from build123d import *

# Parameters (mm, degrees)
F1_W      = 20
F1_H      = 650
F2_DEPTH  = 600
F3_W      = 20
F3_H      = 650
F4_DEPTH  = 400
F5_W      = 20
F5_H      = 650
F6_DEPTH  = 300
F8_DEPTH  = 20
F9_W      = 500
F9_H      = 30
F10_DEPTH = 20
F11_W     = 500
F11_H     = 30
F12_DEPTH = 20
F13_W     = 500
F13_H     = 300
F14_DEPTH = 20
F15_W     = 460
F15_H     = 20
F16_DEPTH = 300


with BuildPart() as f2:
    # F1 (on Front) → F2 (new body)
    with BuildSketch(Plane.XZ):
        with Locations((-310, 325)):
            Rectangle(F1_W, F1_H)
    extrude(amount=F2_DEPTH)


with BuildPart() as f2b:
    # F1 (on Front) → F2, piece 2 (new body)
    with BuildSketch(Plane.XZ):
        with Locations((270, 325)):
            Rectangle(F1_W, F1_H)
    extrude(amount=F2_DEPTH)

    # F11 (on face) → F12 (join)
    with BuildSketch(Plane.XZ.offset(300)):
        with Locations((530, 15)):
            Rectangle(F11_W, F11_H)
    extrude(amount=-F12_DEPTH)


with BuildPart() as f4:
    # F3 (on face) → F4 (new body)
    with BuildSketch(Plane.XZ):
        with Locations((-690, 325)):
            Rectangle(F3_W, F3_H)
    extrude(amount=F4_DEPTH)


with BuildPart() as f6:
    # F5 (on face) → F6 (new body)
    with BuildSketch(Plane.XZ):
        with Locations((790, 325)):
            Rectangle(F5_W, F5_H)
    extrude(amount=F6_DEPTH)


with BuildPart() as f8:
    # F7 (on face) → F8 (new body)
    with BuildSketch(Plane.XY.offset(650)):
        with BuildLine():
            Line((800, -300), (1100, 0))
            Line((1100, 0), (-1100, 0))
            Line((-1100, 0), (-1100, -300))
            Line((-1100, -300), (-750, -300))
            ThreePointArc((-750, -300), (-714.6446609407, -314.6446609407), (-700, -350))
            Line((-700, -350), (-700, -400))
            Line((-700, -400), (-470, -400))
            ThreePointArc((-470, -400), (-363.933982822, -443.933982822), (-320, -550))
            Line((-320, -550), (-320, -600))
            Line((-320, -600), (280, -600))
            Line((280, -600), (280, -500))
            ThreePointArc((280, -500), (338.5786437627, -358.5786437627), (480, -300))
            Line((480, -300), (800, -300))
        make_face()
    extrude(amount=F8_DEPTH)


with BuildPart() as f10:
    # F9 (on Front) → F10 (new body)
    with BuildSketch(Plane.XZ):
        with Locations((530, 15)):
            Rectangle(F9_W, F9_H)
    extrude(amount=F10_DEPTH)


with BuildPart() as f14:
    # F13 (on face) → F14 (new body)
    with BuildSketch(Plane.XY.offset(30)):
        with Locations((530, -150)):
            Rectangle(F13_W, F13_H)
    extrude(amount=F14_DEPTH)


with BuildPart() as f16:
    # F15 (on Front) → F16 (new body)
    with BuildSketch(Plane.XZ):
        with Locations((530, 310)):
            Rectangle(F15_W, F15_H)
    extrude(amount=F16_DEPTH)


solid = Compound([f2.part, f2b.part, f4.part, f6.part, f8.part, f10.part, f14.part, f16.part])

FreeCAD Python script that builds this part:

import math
import FreeCAD as App
import Part
import Sketcher
from FreeCAD import Vector
Q = App.Units.Quantity

doc = App.newDocument("Part")
body = doc.addObject("PartDesign::Body", "Body")

# Sketch on XZ plane
sketch1 = body.newObject("Sketcher::SketchObject", "Sketch")
sketch1.AttachmentSupport = (doc.getObject("XZ_Plane"), [""])
sketch1.MapMode = "FlatFace"
sketch1.addGeometry([
    Part.LineSegment(Vector(-320, 650, 0), Vector(-320, 0, 0)),
    Part.LineSegment(Vector(-320, 0, 0), Vector(-300, 0, 0)),
    Part.LineSegment(Vector(-300, 0, 0), Vector(-300, 650, 0)),
    Part.LineSegment(Vector(-300, 650, 0), Vector(-320, 650, 0)),
], False)
sketch1.addConstraint([
    Sketcher.Constraint("Coincident", 0, 2, 1, 1),
    Sketcher.Constraint("Coincident", 1, 2, 2, 1),
    Sketcher.Constraint("Coincident", 2, 2, 3, 1),
    Sketcher.Constraint("Coincident", 3, 2, 0, 1),
    Sketcher.Constraint("Vertical", 0),
    Sketcher.Constraint("Horizontal", 1),
    Sketcher.Constraint("Vertical", 2),
    Sketcher.Constraint("Horizontal", 3),
    Sketcher.Constraint("PointOnObject", 0, 2, -1),
    Sketcher.Constraint("DistanceX", 1, 1, 1, 2, Q("20 mm")),
    Sketcher.Constraint("DistanceY", 0, 2, 0, 1, Q("650 mm")),
    Sketcher.Constraint("DistanceX", 0, 2, -1, 1, Q("320 mm")),
])
pad1 = body.newObject("PartDesign::Pad", "Pad")
pad1.Profile = sketch1
pad1.Length = 600
body2 = doc.addObject("PartDesign::Body", "Body001")

# Sketch on XZ plane
sketch2 = body2.newObject("Sketcher::SketchObject", "Sketch001")
sketch2.AttachmentSupport = (doc.getObject("XZ_Plane001"), [""])
sketch2.MapMode = "FlatFace"
sketch2.addGeometry([
    Part.LineSegment(Vector(260, 650, 0), Vector(260, 0, 0)),
    Part.LineSegment(Vector(260, 0, 0), Vector(280, 0, 0)),
    Part.LineSegment(Vector(280, 0, 0), Vector(280, 650, 0)),
    Part.LineSegment(Vector(280, 650, 0), Vector(260, 650, 0)),
], False)
sketch2.addConstraint([
    Sketcher.Constraint("Coincident", 0, 2, 1, 1),
    Sketcher.Constraint("Coincident", 1, 2, 2, 1),
    Sketcher.Constraint("Coincident", 2, 2, 3, 1),
    Sketcher.Constraint("Coincident", 3, 2, 0, 1),
    Sketcher.Constraint("Vertical", 0),
    Sketcher.Constraint("Horizontal", 1),
    Sketcher.Constraint("Vertical", 2),
    Sketcher.Constraint("Horizontal", 3),
    Sketcher.Constraint("PointOnObject", 0, 2, -1),
    Sketcher.Constraint("DistanceX", 1, 1, 1, 2, Q("20 mm")),
    Sketcher.Constraint("DistanceY", 0, 2, 0, 1, Q("650 mm")),
    Sketcher.Constraint("DistanceX", -1, 1, 0, 2, Q("260 mm")),
])
pad2 = body2.newObject("PartDesign::Pad", "Pad001")
pad2.Profile = sketch2
pad2.Length = 600

# Sketch on XZ plane
sketch3 = body2.newObject("Sketcher::SketchObject", "Sketch002")
sketch3.AttachmentSupport = (doc.getObject("XZ_Plane001"), [""])
sketch3.MapMode = "FlatFace"
sketch3.AttachmentOffset = App.Placement(Vector(0, 0, 300), App.Rotation())
sketch3.addGeometry([
    Part.LineSegment(Vector(280, 30, 0), Vector(280, 0, 0)),
    Part.LineSegment(Vector(280, 0, 0), Vector(780, 0, 0)),
    Part.LineSegment(Vector(780, 0, 0), Vector(780, 30, 0)),
    Part.LineSegment(Vector(780, 30, 0), Vector(280, 30, 0)),
], False)
sketch3.addConstraint([
    Sketcher.Constraint("Coincident", 0, 2, 1, 1),
    Sketcher.Constraint("Coincident", 1, 2, 2, 1),
    Sketcher.Constraint("Coincident", 2, 2, 3, 1),
    Sketcher.Constraint("Coincident", 3, 2, 0, 1),
    Sketcher.Constraint("Vertical", 0),
    Sketcher.Constraint("Horizontal", 1),
    Sketcher.Constraint("Vertical", 2),
    Sketcher.Constraint("Horizontal", 3),
    Sketcher.Constraint("PointOnObject", 0, 2, -1),
    Sketcher.Constraint("DistanceX", 1, 1, 1, 2, Q("500 mm")),
    Sketcher.Constraint("DistanceY", 0, 2, 0, 1, Q("30 mm")),
    Sketcher.Constraint("DistanceX", -1, 1, 0, 2, Q("280 mm")),
])
pad3 = body2.newObject("PartDesign::Pad", "Pad002")
pad3.Profile = sketch3
pad3.Length = 20
pad3.Reversed = True
body3 = doc.addObject("PartDesign::Body", "Body002")

# Sketch on XZ plane
sketch4 = body3.newObject("Sketcher::SketchObject", "Sketch003")
sketch4.AttachmentSupport = (doc.getObject("XZ_Plane002"), [""])
sketch4.MapMode = "FlatFace"
sketch4.addGeometry([
    Part.LineSegment(Vector(-700, 650, 0), Vector(-700, 0, 0)),
    Part.LineSegment(Vector(-700, 0, 0), Vector(-680, 0, 0)),
    Part.LineSegment(Vector(-680, 0, 0), Vector(-680, 650, 0)),
    Part.LineSegment(Vector(-680, 650, 0), Vector(-700, 650, 0)),
], False)
sketch4.addConstraint([
    Sketcher.Constraint("Coincident", 0, 2, 1, 1),
    Sketcher.Constraint("Coincident", 1, 2, 2, 1),
    Sketcher.Constraint("Coincident", 2, 2, 3, 1),
    Sketcher.Constraint("Coincident", 3, 2, 0, 1),
    Sketcher.Constraint("Vertical", 0),
    Sketcher.Constraint("Horizontal", 1),
    Sketcher.Constraint("Vertical", 2),
    Sketcher.Constraint("Horizontal", 3),
    Sketcher.Constraint("PointOnObject", 0, 2, -1),
    Sketcher.Constraint("DistanceX", 1, 1, 1, 2, Q("20 mm")),
    Sketcher.Constraint("DistanceY", 0, 2, 0, 1, Q("650 mm")),
    Sketcher.Constraint("DistanceX", 0, 2, -1, 1, Q("700 mm")),
])
pad4 = body3.newObject("PartDesign::Pad", "Pad003")
pad4.Profile = sketch4
pad4.Length = 400
body4 = doc.addObject("PartDesign::Body", "Body003")

# Sketch on XZ plane
sketch5 = body4.newObject("Sketcher::SketchObject", "Sketch004")
sketch5.AttachmentSupport = (doc.getObject("XZ_Plane003"), [""])
sketch5.MapMode = "FlatFace"
sketch5.addGeometry([
    Part.LineSegment(Vector(780, 650, 0), Vector(780, 0, 0)),
    Part.LineSegment(Vector(780, 0, 0), Vector(800, 0, 0)),
    Part.LineSegment(Vector(800, 0, 0), Vector(800, 650, 0)),
    Part.LineSegment(Vector(800, 650, 0), Vector(780, 650, 0)),
], False)
sketch5.addConstraint([
    Sketcher.Constraint("Coincident", 0, 2, 1, 1),
    Sketcher.Constraint("Coincident", 1, 2, 2, 1),
    Sketcher.Constraint("Coincident", 2, 2, 3, 1),
    Sketcher.Constraint("Coincident", 3, 2, 0, 1),
    Sketcher.Constraint("Vertical", 0),
    Sketcher.Constraint("Horizontal", 1),
    Sketcher.Constraint("Vertical", 2),
    Sketcher.Constraint("Horizontal", 3),
    Sketcher.Constraint("PointOnObject", 0, 2, -1),
    Sketcher.Constraint("DistanceX", 1, 1, 1, 2, Q("20 mm")),
    Sketcher.Constraint("DistanceY", 0, 2, 0, 1, Q("650 mm")),
    Sketcher.Constraint("DistanceX", -1, 1, 0, 2, Q("780 mm")),
])
pad5 = body4.newObject("PartDesign::Pad", "Pad004")
pad5.Profile = sketch5
pad5.Length = 300
body5 = doc.addObject("PartDesign::Body", "Body004")

# Sketch on XY plane
sketch6 = body5.newObject("Sketcher::SketchObject", "Sketch005")
sketch6.AttachmentSupport = (doc.getObject("XY_Plane004"), [""])
sketch6.MapMode = "FlatFace"
sketch6.AttachmentOffset = App.Placement(Vector(0, 0, 650), App.Rotation())
sketch6.addGeometry([
    Part.LineSegment(Vector(800, -300, 0), Vector(1100, 0, 0)),  # 0
    Part.LineSegment(Vector(1100, 0, 0), Vector(-1100, 0, 0)),  # 1
    Part.LineSegment(Vector(-1100, 0, 0), Vector(-1100, -300, 0)),  # 2
    Part.LineSegment(Vector(-1100, -300, 0), Vector(-750, -300, 0)),  # 3
    Part.ArcOfCircle(Part.Circle(Vector(-750, -350, 0), Vector(0, 0, 1), 50), math.radians(0), math.radians(90)),  # 4
    Part.LineSegment(Vector(-700, -350, 0), Vector(-700, -400, 0)),  # 5
    Part.LineSegment(Vector(-700, -400, 0), Vector(-470, -400, 0)),  # 6
    Part.ArcOfCircle(Part.Circle(Vector(-470, -550, 0), Vector(0, 0, 1), 150), math.radians(0), math.radians(90)),  # 7
    Part.LineSegment(Vector(-320, -550, 0), Vector(-320, -600, 0)),  # 8
    Part.LineSegment(Vector(-320, -600, 0), Vector(280, -600, 0)),  # 9
    Part.LineSegment(Vector(280, -600, 0), Vector(280, -500, 0)),  # 10
    Part.ArcOfCircle(Part.Circle(Vector(480, -500, 0), Vector(0, 0, 1), 200), math.radians(90), math.radians(180)),  # 11
    Part.LineSegment(Vector(480, -300, 0), Vector(800, -300, 0)),  # 12
], False)
sketch6.addConstraint([
    Sketcher.Constraint("Coincident", 0, 2, 1, 1),
    Sketcher.Constraint("Coincident", 1, 2, 2, 1),
    Sketcher.Constraint("Coincident", 2, 2, 3, 1),
    Sketcher.Constraint("Tangent", 3, 2, 4, 2),
    Sketcher.Constraint("Tangent", 4, 1, 5, 1),
    Sketcher.Constraint("Coincident", 5, 2, 6, 1),
    Sketcher.Constraint("Tangent", 6, 2, 7, 2),
    Sketcher.Constraint("Tangent", 7, 1, 8, 1),
    Sketcher.Constraint("Coincident", 8, 2, 9, 1),
    Sketcher.Constraint("Coincident", 9, 2, 10, 1),
    Sketcher.Constraint("Tangent", 10, 2, 11, 2),
    Sketcher.Constraint("Tangent", 11, 1, 12, 1),
    Sketcher.Constraint("Coincident", 12, 2, 0, 1),
    Sketcher.Constraint("Horizontal", 1),
    Sketcher.Constraint("Vertical", 2),
    Sketcher.Constraint("Horizontal", 3),
    Sketcher.Constraint("Vertical", 5),
    Sketcher.Constraint("Horizontal", 6),
    Sketcher.Constraint("Vertical", 8),
    Sketcher.Constraint("Horizontal", 9),
    Sketcher.Constraint("Vertical", 10),
    Sketcher.Constraint("Horizontal", 12),
    Sketcher.Constraint("Symmetric", 0, 2, 1, 2, -1, 1),
    Sketcher.Constraint("Horizontal", 3, 2, 11, 1),
    Sketcher.Constraint("Equal", 5, 8),
    Sketcher.Constraint("Radius", 4, Q("50 mm")),
    Sketcher.Constraint("Radius", 7, Q("150 mm")),
    Sketcher.Constraint("Radius", 11, Q("200 mm")),
    Sketcher.Constraint("DistanceX", 1, 2, 1, 1, Q("2200 mm")),
    Sketcher.Constraint("DistanceX", 3, 1, 3, 2, Q("350 mm")),
    Sketcher.Constraint("DistanceX", 6, 1, 6, 2, Q("230 mm")),
    Sketcher.Constraint("DistanceX", 9, 1, 9, 2, Q("600 mm")),
    Sketcher.Constraint("DistanceX", 12, 1, 12, 2, Q("320 mm")),
    Sketcher.Constraint("DistanceY", 2, 2, 2, 1, Q("300 mm")),
    Sketcher.Constraint("DistanceY", 5, 2, 5, 1, Q("50 mm")),
])
pad6 = body5.newObject("PartDesign::Pad", "Pad005")
pad6.Profile = sketch6
pad6.Length = 20
body6 = doc.addObject("PartDesign::Body", "Body005")

# Sketch on XZ plane
sketch7 = body6.newObject("Sketcher::SketchObject", "Sketch006")
sketch7.AttachmentSupport = (doc.getObject("XZ_Plane005"), [""])
sketch7.MapMode = "FlatFace"
sketch7.addGeometry([
    Part.LineSegment(Vector(280, 30, 0), Vector(280, 0, 0)),
    Part.LineSegment(Vector(280, 0, 0), Vector(780, 0, 0)),
    Part.LineSegment(Vector(780, 0, 0), Vector(780, 30, 0)),
    Part.LineSegment(Vector(780, 30, 0), Vector(280, 30, 0)),
], False)
sketch7.addConstraint([
    Sketcher.Constraint("Coincident", 0, 2, 1, 1),
    Sketcher.Constraint("Coincident", 1, 2, 2, 1),
    Sketcher.Constraint("Coincident", 2, 2, 3, 1),
    Sketcher.Constraint("Coincident", 3, 2, 0, 1),
    Sketcher.Constraint("Vertical", 0),
    Sketcher.Constraint("Horizontal", 1),
    Sketcher.Constraint("Vertical", 2),
    Sketcher.Constraint("Horizontal", 3),
    Sketcher.Constraint("PointOnObject", 0, 2, -1),
    Sketcher.Constraint("DistanceX", 1, 1, 1, 2, Q("500 mm")),
    Sketcher.Constraint("DistanceY", 0, 2, 0, 1, Q("30 mm")),
    Sketcher.Constraint("DistanceX", -1, 1, 0, 2, Q("280 mm")),
])
pad7 = body6.newObject("PartDesign::Pad", "Pad006")
pad7.Profile = sketch7
pad7.Length = 20
body7 = doc.addObject("PartDesign::Body", "Body006")

# Sketch on XY plane
sketch8 = body7.newObject("Sketcher::SketchObject", "Sketch007")
sketch8.AttachmentSupport = (doc.getObject("XY_Plane006"), [""])
sketch8.MapMode = "FlatFace"
sketch8.AttachmentOffset = App.Placement(Vector(0, 0, 30), App.Rotation())
sketch8.addGeometry([
    Part.LineSegment(Vector(280, 0, 0), Vector(280, -300, 0)),
    Part.LineSegment(Vector(280, -300, 0), Vector(780, -300, 0)),
    Part.LineSegment(Vector(780, -300, 0), Vector(780, 0, 0)),
    Part.LineSegment(Vector(780, 0, 0), Vector(280, 0, 0)),
], False)
sketch8.addConstraint([
    Sketcher.Constraint("Coincident", 0, 2, 1, 1),
    Sketcher.Constraint("Coincident", 1, 2, 2, 1),
    Sketcher.Constraint("Coincident", 2, 2, 3, 1),
    Sketcher.Constraint("Coincident", 3, 2, 0, 1),
    Sketcher.Constraint("Vertical", 0),
    Sketcher.Constraint("Horizontal", 1),
    Sketcher.Constraint("Vertical", 2),
    Sketcher.Constraint("Horizontal", 3),
    Sketcher.Constraint("PointOnObject", 2, 2, -1),
    Sketcher.Constraint("DistanceX", 1, 1, 1, 2, Q("500 mm")),
    Sketcher.Constraint("DistanceY", 0, 2, 0, 1, Q("300 mm")),
    Sketcher.Constraint("DistanceX", -1, 1, 0, 2, Q("280 mm")),
])
pad8 = body7.newObject("PartDesign::Pad", "Pad007")
pad8.Profile = sketch8
pad8.Length = 20
body8 = doc.addObject("PartDesign::Body", "Body007")

# Sketch on XZ plane
sketch9 = body8.newObject("Sketcher::SketchObject", "Sketch008")
sketch9.AttachmentSupport = (doc.getObject("XZ_Plane007"), [""])
sketch9.MapMode = "FlatFace"
sketch9.addGeometry([
    Part.LineSegment(Vector(300, 320, 0), Vector(300, 300, 0)),
    Part.LineSegment(Vector(300, 300, 0), Vector(760, 300, 0)),
    Part.LineSegment(Vector(760, 300, 0), Vector(760, 320, 0)),
    Part.LineSegment(Vector(760, 320, 0), Vector(300, 320, 0)),
], False)
sketch9.addConstraint([
    Sketcher.Constraint("Coincident", 0, 2, 1, 1),
    Sketcher.Constraint("Coincident", 1, 2, 2, 1),
    Sketcher.Constraint("Coincident", 2, 2, 3, 1),
    Sketcher.Constraint("Coincident", 3, 2, 0, 1),
    Sketcher.Constraint("Vertical", 0),
    Sketcher.Constraint("Horizontal", 1),
    Sketcher.Constraint("Vertical", 2),
    Sketcher.Constraint("Horizontal", 3),
    Sketcher.Constraint("DistanceX", 1, 1, 1, 2, Q("460 mm")),
    Sketcher.Constraint("DistanceY", 0, 2, 0, 1, Q("20 mm")),
    Sketcher.Constraint("DistanceX", -1, 1, 0, 2, Q("300 mm")),
    Sketcher.Constraint("DistanceY", -1, 1, 0, 2, Q("300 mm")),
])
pad9 = body8.newObject("PartDesign::Pad", "Pad008")
pad9.Profile = sketch9
pad9.Length = 300

doc.recompute()
